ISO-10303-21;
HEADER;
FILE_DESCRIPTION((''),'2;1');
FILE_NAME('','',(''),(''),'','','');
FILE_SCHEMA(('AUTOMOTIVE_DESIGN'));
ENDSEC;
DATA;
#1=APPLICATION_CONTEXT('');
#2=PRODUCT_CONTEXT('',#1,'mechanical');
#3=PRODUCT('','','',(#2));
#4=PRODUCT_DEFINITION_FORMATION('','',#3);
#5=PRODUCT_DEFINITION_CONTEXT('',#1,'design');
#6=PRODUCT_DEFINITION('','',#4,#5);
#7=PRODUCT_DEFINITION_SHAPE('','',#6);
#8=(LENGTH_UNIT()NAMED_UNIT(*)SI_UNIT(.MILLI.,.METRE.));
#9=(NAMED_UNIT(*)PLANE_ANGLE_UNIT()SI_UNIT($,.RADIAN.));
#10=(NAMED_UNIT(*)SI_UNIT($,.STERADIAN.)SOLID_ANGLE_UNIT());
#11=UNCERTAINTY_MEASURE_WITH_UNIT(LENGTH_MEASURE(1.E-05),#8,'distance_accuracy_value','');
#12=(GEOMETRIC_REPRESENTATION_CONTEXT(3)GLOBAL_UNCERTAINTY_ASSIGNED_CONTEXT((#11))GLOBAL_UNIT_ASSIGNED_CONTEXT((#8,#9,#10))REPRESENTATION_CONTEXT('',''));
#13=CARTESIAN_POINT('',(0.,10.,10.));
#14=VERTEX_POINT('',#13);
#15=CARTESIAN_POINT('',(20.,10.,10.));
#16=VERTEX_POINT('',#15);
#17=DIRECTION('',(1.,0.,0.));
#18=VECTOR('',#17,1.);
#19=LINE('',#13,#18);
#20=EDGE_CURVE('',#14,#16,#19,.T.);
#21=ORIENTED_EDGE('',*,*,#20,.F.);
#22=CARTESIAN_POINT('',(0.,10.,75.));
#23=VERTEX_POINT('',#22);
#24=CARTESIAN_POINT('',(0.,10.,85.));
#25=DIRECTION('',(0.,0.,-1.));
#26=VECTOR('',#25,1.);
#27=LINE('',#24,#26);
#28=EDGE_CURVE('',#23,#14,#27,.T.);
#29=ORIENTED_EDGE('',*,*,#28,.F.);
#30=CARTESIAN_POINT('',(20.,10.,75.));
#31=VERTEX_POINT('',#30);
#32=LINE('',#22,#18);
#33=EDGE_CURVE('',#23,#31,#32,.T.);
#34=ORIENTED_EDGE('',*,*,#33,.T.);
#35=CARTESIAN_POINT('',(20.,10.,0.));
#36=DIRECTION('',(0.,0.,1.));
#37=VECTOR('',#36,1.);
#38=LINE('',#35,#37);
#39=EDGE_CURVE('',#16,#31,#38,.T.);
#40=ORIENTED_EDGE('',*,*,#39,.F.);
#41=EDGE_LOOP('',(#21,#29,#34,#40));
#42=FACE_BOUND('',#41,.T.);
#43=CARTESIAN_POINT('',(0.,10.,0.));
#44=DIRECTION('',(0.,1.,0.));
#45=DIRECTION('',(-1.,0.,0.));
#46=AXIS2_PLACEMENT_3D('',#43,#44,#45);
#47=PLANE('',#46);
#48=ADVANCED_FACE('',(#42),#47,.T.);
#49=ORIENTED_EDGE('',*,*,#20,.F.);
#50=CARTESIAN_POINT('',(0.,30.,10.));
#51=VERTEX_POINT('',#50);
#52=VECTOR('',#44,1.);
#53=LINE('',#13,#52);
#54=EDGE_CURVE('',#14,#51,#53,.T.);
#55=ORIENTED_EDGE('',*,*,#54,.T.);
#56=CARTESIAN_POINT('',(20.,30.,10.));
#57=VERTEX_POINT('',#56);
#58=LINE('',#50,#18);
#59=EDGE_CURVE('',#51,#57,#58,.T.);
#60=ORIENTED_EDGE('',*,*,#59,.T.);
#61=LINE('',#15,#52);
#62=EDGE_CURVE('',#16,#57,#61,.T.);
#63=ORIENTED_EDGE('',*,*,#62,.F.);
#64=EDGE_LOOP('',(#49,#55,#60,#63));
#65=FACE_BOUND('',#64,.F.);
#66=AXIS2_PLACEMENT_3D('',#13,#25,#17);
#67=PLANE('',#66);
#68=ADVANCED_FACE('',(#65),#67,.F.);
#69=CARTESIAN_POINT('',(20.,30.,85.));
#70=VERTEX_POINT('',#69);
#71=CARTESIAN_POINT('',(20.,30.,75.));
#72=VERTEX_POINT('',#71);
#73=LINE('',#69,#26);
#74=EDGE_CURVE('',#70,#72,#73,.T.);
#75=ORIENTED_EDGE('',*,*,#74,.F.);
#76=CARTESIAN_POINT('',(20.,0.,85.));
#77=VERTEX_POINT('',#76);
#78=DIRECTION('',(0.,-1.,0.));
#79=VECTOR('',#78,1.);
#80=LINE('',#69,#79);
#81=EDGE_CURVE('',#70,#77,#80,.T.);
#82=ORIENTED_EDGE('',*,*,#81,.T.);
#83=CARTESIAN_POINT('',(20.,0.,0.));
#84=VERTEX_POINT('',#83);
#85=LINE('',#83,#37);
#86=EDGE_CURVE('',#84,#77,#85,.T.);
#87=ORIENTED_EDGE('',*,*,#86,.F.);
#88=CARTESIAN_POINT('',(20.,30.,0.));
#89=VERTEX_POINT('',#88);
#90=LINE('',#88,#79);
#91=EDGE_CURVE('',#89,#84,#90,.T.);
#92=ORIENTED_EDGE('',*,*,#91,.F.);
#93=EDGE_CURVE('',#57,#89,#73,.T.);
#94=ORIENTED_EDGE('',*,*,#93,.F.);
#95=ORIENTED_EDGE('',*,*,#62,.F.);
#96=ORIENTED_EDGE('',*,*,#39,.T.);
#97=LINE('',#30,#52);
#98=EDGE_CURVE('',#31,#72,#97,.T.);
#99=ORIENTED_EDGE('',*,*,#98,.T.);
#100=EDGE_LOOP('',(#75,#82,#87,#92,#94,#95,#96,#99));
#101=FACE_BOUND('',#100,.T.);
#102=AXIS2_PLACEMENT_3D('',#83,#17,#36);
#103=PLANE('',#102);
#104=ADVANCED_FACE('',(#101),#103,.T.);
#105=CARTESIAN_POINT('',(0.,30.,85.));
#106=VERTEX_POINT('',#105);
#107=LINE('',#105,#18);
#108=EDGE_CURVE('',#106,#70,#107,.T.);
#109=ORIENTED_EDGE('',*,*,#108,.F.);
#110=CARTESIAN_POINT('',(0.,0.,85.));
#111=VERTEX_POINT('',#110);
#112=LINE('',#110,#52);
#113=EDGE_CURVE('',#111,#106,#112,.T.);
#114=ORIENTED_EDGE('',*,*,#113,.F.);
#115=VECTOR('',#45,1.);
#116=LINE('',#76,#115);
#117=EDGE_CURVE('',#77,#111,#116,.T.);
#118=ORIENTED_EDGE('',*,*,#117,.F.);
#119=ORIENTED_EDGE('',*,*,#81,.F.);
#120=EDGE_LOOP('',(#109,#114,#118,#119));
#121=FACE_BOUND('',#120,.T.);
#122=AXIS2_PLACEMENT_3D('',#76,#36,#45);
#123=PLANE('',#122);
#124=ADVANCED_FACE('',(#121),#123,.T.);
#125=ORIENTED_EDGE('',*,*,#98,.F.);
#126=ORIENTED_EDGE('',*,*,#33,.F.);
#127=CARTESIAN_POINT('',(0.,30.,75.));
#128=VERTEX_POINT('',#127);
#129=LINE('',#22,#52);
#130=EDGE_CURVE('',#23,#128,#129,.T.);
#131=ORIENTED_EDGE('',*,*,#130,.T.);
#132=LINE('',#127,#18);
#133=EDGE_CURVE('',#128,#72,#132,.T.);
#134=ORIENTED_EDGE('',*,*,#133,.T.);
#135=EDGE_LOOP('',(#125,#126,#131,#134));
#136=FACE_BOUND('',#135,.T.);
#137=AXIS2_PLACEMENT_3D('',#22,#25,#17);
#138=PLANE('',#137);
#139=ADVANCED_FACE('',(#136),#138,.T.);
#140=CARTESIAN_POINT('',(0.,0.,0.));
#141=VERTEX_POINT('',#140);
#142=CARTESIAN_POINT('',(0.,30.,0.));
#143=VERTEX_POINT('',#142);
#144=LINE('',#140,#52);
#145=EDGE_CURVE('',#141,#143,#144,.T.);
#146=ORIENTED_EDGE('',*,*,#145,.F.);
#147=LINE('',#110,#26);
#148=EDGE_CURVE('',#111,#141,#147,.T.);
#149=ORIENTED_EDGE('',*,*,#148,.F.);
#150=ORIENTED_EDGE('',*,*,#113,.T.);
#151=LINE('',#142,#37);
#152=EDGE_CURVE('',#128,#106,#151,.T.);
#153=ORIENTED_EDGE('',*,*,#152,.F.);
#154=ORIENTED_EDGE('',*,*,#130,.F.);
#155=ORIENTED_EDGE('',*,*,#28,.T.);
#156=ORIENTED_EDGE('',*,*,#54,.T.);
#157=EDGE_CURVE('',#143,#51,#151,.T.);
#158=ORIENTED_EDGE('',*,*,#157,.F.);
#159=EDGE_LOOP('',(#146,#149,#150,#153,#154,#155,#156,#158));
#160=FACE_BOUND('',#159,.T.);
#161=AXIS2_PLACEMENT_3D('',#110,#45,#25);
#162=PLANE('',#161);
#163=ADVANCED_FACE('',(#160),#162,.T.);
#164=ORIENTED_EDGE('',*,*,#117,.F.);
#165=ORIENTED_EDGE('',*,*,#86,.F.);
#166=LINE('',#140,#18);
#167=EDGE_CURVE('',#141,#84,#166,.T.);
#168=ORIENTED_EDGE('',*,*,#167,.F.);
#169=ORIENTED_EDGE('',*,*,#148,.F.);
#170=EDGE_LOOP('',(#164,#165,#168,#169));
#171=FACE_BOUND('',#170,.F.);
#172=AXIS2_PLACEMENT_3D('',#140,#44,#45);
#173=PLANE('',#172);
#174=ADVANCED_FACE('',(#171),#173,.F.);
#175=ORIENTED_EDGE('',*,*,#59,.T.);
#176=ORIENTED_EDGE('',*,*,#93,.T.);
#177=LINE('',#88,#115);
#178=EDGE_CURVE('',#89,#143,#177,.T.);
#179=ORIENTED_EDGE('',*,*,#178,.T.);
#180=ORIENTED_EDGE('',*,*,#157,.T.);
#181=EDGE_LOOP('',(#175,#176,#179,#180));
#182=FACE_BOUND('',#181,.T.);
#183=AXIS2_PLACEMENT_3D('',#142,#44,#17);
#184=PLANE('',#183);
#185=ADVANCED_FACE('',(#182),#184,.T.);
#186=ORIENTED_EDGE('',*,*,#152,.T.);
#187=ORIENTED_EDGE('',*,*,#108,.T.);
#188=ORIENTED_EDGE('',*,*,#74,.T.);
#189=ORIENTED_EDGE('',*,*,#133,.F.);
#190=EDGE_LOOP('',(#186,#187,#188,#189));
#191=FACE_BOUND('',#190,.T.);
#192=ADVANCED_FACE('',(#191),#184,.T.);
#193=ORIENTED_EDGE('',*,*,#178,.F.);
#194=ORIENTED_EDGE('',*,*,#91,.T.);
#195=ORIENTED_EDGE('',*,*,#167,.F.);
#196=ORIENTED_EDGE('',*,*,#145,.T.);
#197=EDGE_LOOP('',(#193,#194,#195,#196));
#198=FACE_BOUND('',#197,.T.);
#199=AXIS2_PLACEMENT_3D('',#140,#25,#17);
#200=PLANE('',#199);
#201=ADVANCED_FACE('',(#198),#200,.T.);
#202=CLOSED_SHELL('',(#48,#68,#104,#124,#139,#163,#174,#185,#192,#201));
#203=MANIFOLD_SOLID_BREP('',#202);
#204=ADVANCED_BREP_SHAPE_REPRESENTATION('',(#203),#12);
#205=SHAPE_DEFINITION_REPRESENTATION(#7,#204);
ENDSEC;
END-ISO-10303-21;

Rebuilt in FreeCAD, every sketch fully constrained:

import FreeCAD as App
import Part
import Sketcher

V = App.Vector

doc = App.newDocument("Part")
body = doc.addObject("PartDesign::Body", "Body")

# Sketch on XZ plane
sketch1 = body.newObject("Sketcher::SketchObject", "Sketch")
sketch1.AttachmentSupport = (doc.getObject("XZ_Plane"), [""])
sketch1.MapMode = "FlatFace"
sketch1.addGeometry(Part.LineSegment(V(20, 0, 0), V(0, 0, 0)), False)
sketch1.addGeometry(Part.LineSegment(V(0, 0, 0), V(0, 85, 0)), False)
sketch1.addGeometry(Part.LineSegment(V(0, 85, 0), V(20, 85, 0)), False)
sketch1.addGeometry(Part.LineSegment(V(20, 85, 0), V(20, 0, 0)), False)
sketch1.addConstraint(Sketcher.Constraint("Coincident", 0, 2, 1, 1))
sketch1.addConstraint(Sketcher.Constraint("Coincident", 1, 2, 2, 1))
sketch1.addConstraint(Sketcher.Constraint("Coincident", 2, 2, 3, 1))
sketch1.addConstraint(Sketcher.Constraint("Coincident", 3, 2, 0, 1))
sketch1.addConstraint(Sketcher.Constraint("Horizontal", 0))
sketch1.addConstraint(Sketcher.Constraint("Vertical", 1))
sketch1.addConstraint(Sketcher.Constraint("Horizontal", 2))
sketch1.addConstraint(Sketcher.Constraint("Vertical", 3))
sketch1.addConstraint(Sketcher.Constraint("Coincident", 0, 2, -1, 1))
sketch1.addConstraint(Sketcher.Constraint("DistanceX", 0, 2, 0, 1, 20.0))
sketch1.addConstraint(Sketcher.Constraint("DistanceY", 1, 1, 1, 2, 85.0))
pad1 = body.newObject("PartDesign::Pad", "Pad")
pad1.Profile = sketch1
pad1.Length = 10
pad1.Reversed = True

# Sketch on XZ plane
sketch2 = body.newObject("Sketcher::SketchObject", "Sketch001")
sketch2.AttachmentSupport = (doc.getObject("XZ_Plane"), [""])
sketch2.MapMode = "FlatFace"
sketch2.AttachmentOffset = App.Placement(V(0, 0, -10), App.Rotation())
sketch2.addGeometry(Part.LineSegment(V(0, 85, 0), V(20, 85, 0)), False)
sketch2.addGeometry(Part.LineSegment(V(20, 85, 0), V(20, 75, 0)), False)
sketch2.addGeometry(Part.LineSegment(V(20, 75, 0), V(0, 75, 0)), False)
sketch2.addGeometry(Part.LineSegment(V(0, 75, 0), V(0, 85, 0)), False)
sketch2.addGeometry(Part.LineSegment(V(0, 10, 0), V(20, 10, 0)), False)
sketch2.addGeometry(Part.LineSegment(V(20, 10, 0), V(20, 0, 0)), False)
sketch2.addGeometry(Part.LineSegment(V(20, 0, 0), V(0, 0, 0)), False)
sketch2.addGeometry(Part.LineSegment(V(0, 0, 0), V(0, 10, 0)), False)
sketch2.addConstraint(Sketcher.Constraint("Coincident", 0, 2, 1, 1))
sketch2.addConstraint(Sketcher.Constraint("Coincident", 1, 2, 2, 1))
sketch2.addConstraint(Sketcher.Constraint("Coincident", 2, 2, 3, 1))
sketch2.addConstraint(Sketcher.Constraint("Coincident", 3, 2, 0, 1))
sketch2.addConstraint(Sketcher.Constraint("Coincident", 4, 2, 5, 1))
sketch2.addConstraint(Sketcher.Constraint("Coincident", 5, 2, 6, 1))
sketch2.addConstraint(Sketcher.Constraint("Coincident", 6, 2, 7, 1))
sketch2.addConstraint(Sketcher.Constraint("Coincident", 7, 2, 4, 1))
sketch2.addConstraint(Sketcher.Constraint("Horizontal", 0))
sketch2.addConstraint(Sketcher.Constraint("Vertical", 1))
sketch2.addConstraint(Sketcher.Constraint("Horizontal", 2))
sketch2.addConstraint(Sketcher.Constraint("Vertical", 3))
sketch2.addConstraint(Sketcher.Constraint("Horizontal", 4))
sketch2.addConstraint(Sketcher.Constraint("Vertical", 5))
sketch2.addConstraint(Sketcher.Constraint("Horizontal", 6))
sketch2.addConstraint(Sketcher.Constraint("Vertical", 7))
sketch2.addConstraint(Sketcher.Constraint("Coincident", 6, 2, -1, 1))
sketch2.addConstraint(Sketcher.Constraint("PointOnObject", 2, 2, -2))
sketch2.addConstraint(Sketcher.Constraint("Vertical", 1, 2, 4, 2))
sketch2.addConstraint(Sketcher.Constraint("Equal", 3, 5))
sketch2.addConstraint(Sketcher.Constraint("DistanceY", 1, 2, 1, 1, 10.0))
sketch2.addConstraint(Sketcher.Constraint("DistanceX", 0, 1, 0, 2, 20.0))
sketch2.addConstraint(Sketcher.Constraint("DistanceY", -1, 1, 0, 2, 85.0))
pad2 = body.newObject("PartDesign::Pad", "Pad001")
pad2.Profile = sketch2
pad2.Length = 20
pad2.Reversed = True

doc.recompute()
